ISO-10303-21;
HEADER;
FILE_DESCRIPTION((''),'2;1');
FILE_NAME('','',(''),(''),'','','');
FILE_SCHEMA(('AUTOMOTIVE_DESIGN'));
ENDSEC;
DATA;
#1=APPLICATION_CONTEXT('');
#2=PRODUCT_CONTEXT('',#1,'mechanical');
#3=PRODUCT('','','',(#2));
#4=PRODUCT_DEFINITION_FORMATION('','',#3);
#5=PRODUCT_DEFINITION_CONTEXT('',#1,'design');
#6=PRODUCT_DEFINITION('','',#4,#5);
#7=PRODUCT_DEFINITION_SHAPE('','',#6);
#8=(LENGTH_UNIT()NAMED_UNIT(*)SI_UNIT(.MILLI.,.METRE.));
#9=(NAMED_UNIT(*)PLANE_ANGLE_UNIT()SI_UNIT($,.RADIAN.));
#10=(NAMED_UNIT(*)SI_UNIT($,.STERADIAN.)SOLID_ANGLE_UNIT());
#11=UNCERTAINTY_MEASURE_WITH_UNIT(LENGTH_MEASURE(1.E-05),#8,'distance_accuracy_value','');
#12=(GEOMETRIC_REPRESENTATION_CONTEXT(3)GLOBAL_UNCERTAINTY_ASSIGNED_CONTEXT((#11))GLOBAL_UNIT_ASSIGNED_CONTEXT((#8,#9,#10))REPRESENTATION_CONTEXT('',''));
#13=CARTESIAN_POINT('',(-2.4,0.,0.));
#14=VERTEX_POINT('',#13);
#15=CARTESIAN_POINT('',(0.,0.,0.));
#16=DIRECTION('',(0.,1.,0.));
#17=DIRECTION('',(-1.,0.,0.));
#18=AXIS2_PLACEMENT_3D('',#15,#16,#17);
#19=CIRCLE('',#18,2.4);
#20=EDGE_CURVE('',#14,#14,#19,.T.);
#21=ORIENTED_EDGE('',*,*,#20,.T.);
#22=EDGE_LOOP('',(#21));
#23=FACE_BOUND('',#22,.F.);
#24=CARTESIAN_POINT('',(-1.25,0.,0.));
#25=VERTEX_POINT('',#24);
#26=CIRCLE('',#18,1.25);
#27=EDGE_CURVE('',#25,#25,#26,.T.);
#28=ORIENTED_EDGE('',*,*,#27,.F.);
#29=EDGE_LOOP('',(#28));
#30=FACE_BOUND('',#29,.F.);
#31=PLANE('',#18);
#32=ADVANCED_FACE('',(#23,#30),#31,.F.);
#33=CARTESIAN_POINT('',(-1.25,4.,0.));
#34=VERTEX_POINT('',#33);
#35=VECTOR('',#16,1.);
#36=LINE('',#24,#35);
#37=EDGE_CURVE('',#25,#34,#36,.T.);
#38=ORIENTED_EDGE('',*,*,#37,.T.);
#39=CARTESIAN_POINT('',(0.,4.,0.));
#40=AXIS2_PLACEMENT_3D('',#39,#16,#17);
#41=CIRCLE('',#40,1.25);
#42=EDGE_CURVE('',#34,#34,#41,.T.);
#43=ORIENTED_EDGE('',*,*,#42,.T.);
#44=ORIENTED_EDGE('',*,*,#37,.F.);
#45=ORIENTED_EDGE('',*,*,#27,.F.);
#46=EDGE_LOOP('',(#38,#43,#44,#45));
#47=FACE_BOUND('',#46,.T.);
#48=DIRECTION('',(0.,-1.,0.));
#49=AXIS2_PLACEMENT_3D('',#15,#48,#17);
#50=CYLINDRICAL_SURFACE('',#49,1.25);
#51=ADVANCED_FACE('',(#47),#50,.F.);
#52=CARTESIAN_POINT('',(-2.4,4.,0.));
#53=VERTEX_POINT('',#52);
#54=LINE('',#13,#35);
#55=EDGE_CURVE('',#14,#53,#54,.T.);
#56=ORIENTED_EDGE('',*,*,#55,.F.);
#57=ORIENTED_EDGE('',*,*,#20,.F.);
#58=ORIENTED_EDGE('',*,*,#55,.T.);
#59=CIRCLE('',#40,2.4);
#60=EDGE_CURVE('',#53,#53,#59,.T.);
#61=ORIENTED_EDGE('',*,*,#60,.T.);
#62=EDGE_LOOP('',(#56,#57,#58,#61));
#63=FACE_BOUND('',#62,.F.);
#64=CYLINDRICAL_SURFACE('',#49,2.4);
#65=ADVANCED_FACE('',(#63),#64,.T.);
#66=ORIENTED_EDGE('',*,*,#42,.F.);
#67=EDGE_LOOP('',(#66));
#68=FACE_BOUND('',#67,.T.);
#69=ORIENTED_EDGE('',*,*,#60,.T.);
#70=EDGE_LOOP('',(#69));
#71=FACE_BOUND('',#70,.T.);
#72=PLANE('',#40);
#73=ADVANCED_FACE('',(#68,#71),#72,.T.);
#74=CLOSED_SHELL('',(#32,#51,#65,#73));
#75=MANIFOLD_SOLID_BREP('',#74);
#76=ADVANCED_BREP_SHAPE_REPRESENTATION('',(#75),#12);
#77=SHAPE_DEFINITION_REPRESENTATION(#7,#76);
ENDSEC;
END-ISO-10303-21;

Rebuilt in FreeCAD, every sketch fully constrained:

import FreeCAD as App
import Part
import Sketcher

V = App.Vector

doc = App.newDocument("Part")
body = doc.addObject("PartDesign::Body", "Body")

sketch1 = doc.addObject("Sketcher::SketchObject", "Sketch")
body.addObject(sketch1)
sketch1.AttachmentSupport = (doc.XZ_Plane, [""])
sketch1.MapMode = "FlatFace"
sketch1.addGeometry([
    Part.Circle(V(0, 0, 0), V(0, 0, 1), 2.4),
    Part.Circle(V(0, 0, 0), V(0, 0, 1), 1.2),
], False)
sketch1.addConstraint([
    Sketcher.Constraint("Coincident", 0, 3, -1, 1),
    Sketcher.Constraint("Coincident", 1, 3, -1, 1),
    Sketcher.Constraint("Diameter", 0, 4.8),
    Sketcher.Constraint("Diameter", 1, 2.5),
])
pad1 = doc.addObject("PartDesign::Pad", "Pad")
body.addObject(pad1)
pad1.Profile = sketch1
pad1.Length = 4
pad1.Reversed = True

doc.recompute()
